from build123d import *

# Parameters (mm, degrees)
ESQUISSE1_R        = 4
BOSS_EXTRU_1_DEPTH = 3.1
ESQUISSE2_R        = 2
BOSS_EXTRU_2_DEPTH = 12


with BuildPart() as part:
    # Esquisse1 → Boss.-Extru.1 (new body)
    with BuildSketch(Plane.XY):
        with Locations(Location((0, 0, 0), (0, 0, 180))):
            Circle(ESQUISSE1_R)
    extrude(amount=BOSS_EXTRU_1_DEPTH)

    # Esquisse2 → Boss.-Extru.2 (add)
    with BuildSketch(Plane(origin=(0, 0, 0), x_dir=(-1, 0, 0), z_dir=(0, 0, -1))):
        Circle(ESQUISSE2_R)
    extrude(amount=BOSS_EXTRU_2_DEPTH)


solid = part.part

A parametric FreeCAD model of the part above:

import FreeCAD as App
import Part
import Sketcher
Q = App.Units.Quantity

doc = App.newDocument("Part")
body = doc.addObject("PartDesign::Body", "Body")

sketch1 = body.newObject("Sketcher::SketchObject", "Sketch")
sketch1.AttachmentSupport = (doc.getObject("XY_Plane"), [""])
sketch1.MapMode = "FlatFace"
sketch1.addGeometry(Part.Circle(App.Vector(0, 0, 0), App.Vector(0, 0, 1), 4), False)
sketch1.addConstraint([
    Sketcher.Constraint("Coincident", 0, 3, -1, 1),
    Sketcher.Constraint("Diameter", 0, Q("8 mm")),
])
pad1 = body.newObject("PartDesign::Pad", "Pad")
pad1.Profile = sketch1
pad1.Length = 3.1

sketch2 = body.newObject("Sketcher::SketchObject", "Sketch001")
sketch2.AttachmentSupport = (doc.getObject("XY_Plane"), [""])
sketch2.MapMode = "FlatFace"
sketch2.addGeometry(Part.Circle(App.Vector(0, 0, 0), App.Vector(0, 0, 1), 2), False)
sketch2.addConstraint([
    Sketcher.Constraint("Coincident", 0, 3, -1, 1),
    Sketcher.Constraint("Diameter", 0, Q("4 mm")),
])
pad2 = body.newObject("PartDesign::Pad", "Pad001")
pad2.Profile = sketch2
pad2.Length = 12
pad2.Reversed = True

doc.recompute()
